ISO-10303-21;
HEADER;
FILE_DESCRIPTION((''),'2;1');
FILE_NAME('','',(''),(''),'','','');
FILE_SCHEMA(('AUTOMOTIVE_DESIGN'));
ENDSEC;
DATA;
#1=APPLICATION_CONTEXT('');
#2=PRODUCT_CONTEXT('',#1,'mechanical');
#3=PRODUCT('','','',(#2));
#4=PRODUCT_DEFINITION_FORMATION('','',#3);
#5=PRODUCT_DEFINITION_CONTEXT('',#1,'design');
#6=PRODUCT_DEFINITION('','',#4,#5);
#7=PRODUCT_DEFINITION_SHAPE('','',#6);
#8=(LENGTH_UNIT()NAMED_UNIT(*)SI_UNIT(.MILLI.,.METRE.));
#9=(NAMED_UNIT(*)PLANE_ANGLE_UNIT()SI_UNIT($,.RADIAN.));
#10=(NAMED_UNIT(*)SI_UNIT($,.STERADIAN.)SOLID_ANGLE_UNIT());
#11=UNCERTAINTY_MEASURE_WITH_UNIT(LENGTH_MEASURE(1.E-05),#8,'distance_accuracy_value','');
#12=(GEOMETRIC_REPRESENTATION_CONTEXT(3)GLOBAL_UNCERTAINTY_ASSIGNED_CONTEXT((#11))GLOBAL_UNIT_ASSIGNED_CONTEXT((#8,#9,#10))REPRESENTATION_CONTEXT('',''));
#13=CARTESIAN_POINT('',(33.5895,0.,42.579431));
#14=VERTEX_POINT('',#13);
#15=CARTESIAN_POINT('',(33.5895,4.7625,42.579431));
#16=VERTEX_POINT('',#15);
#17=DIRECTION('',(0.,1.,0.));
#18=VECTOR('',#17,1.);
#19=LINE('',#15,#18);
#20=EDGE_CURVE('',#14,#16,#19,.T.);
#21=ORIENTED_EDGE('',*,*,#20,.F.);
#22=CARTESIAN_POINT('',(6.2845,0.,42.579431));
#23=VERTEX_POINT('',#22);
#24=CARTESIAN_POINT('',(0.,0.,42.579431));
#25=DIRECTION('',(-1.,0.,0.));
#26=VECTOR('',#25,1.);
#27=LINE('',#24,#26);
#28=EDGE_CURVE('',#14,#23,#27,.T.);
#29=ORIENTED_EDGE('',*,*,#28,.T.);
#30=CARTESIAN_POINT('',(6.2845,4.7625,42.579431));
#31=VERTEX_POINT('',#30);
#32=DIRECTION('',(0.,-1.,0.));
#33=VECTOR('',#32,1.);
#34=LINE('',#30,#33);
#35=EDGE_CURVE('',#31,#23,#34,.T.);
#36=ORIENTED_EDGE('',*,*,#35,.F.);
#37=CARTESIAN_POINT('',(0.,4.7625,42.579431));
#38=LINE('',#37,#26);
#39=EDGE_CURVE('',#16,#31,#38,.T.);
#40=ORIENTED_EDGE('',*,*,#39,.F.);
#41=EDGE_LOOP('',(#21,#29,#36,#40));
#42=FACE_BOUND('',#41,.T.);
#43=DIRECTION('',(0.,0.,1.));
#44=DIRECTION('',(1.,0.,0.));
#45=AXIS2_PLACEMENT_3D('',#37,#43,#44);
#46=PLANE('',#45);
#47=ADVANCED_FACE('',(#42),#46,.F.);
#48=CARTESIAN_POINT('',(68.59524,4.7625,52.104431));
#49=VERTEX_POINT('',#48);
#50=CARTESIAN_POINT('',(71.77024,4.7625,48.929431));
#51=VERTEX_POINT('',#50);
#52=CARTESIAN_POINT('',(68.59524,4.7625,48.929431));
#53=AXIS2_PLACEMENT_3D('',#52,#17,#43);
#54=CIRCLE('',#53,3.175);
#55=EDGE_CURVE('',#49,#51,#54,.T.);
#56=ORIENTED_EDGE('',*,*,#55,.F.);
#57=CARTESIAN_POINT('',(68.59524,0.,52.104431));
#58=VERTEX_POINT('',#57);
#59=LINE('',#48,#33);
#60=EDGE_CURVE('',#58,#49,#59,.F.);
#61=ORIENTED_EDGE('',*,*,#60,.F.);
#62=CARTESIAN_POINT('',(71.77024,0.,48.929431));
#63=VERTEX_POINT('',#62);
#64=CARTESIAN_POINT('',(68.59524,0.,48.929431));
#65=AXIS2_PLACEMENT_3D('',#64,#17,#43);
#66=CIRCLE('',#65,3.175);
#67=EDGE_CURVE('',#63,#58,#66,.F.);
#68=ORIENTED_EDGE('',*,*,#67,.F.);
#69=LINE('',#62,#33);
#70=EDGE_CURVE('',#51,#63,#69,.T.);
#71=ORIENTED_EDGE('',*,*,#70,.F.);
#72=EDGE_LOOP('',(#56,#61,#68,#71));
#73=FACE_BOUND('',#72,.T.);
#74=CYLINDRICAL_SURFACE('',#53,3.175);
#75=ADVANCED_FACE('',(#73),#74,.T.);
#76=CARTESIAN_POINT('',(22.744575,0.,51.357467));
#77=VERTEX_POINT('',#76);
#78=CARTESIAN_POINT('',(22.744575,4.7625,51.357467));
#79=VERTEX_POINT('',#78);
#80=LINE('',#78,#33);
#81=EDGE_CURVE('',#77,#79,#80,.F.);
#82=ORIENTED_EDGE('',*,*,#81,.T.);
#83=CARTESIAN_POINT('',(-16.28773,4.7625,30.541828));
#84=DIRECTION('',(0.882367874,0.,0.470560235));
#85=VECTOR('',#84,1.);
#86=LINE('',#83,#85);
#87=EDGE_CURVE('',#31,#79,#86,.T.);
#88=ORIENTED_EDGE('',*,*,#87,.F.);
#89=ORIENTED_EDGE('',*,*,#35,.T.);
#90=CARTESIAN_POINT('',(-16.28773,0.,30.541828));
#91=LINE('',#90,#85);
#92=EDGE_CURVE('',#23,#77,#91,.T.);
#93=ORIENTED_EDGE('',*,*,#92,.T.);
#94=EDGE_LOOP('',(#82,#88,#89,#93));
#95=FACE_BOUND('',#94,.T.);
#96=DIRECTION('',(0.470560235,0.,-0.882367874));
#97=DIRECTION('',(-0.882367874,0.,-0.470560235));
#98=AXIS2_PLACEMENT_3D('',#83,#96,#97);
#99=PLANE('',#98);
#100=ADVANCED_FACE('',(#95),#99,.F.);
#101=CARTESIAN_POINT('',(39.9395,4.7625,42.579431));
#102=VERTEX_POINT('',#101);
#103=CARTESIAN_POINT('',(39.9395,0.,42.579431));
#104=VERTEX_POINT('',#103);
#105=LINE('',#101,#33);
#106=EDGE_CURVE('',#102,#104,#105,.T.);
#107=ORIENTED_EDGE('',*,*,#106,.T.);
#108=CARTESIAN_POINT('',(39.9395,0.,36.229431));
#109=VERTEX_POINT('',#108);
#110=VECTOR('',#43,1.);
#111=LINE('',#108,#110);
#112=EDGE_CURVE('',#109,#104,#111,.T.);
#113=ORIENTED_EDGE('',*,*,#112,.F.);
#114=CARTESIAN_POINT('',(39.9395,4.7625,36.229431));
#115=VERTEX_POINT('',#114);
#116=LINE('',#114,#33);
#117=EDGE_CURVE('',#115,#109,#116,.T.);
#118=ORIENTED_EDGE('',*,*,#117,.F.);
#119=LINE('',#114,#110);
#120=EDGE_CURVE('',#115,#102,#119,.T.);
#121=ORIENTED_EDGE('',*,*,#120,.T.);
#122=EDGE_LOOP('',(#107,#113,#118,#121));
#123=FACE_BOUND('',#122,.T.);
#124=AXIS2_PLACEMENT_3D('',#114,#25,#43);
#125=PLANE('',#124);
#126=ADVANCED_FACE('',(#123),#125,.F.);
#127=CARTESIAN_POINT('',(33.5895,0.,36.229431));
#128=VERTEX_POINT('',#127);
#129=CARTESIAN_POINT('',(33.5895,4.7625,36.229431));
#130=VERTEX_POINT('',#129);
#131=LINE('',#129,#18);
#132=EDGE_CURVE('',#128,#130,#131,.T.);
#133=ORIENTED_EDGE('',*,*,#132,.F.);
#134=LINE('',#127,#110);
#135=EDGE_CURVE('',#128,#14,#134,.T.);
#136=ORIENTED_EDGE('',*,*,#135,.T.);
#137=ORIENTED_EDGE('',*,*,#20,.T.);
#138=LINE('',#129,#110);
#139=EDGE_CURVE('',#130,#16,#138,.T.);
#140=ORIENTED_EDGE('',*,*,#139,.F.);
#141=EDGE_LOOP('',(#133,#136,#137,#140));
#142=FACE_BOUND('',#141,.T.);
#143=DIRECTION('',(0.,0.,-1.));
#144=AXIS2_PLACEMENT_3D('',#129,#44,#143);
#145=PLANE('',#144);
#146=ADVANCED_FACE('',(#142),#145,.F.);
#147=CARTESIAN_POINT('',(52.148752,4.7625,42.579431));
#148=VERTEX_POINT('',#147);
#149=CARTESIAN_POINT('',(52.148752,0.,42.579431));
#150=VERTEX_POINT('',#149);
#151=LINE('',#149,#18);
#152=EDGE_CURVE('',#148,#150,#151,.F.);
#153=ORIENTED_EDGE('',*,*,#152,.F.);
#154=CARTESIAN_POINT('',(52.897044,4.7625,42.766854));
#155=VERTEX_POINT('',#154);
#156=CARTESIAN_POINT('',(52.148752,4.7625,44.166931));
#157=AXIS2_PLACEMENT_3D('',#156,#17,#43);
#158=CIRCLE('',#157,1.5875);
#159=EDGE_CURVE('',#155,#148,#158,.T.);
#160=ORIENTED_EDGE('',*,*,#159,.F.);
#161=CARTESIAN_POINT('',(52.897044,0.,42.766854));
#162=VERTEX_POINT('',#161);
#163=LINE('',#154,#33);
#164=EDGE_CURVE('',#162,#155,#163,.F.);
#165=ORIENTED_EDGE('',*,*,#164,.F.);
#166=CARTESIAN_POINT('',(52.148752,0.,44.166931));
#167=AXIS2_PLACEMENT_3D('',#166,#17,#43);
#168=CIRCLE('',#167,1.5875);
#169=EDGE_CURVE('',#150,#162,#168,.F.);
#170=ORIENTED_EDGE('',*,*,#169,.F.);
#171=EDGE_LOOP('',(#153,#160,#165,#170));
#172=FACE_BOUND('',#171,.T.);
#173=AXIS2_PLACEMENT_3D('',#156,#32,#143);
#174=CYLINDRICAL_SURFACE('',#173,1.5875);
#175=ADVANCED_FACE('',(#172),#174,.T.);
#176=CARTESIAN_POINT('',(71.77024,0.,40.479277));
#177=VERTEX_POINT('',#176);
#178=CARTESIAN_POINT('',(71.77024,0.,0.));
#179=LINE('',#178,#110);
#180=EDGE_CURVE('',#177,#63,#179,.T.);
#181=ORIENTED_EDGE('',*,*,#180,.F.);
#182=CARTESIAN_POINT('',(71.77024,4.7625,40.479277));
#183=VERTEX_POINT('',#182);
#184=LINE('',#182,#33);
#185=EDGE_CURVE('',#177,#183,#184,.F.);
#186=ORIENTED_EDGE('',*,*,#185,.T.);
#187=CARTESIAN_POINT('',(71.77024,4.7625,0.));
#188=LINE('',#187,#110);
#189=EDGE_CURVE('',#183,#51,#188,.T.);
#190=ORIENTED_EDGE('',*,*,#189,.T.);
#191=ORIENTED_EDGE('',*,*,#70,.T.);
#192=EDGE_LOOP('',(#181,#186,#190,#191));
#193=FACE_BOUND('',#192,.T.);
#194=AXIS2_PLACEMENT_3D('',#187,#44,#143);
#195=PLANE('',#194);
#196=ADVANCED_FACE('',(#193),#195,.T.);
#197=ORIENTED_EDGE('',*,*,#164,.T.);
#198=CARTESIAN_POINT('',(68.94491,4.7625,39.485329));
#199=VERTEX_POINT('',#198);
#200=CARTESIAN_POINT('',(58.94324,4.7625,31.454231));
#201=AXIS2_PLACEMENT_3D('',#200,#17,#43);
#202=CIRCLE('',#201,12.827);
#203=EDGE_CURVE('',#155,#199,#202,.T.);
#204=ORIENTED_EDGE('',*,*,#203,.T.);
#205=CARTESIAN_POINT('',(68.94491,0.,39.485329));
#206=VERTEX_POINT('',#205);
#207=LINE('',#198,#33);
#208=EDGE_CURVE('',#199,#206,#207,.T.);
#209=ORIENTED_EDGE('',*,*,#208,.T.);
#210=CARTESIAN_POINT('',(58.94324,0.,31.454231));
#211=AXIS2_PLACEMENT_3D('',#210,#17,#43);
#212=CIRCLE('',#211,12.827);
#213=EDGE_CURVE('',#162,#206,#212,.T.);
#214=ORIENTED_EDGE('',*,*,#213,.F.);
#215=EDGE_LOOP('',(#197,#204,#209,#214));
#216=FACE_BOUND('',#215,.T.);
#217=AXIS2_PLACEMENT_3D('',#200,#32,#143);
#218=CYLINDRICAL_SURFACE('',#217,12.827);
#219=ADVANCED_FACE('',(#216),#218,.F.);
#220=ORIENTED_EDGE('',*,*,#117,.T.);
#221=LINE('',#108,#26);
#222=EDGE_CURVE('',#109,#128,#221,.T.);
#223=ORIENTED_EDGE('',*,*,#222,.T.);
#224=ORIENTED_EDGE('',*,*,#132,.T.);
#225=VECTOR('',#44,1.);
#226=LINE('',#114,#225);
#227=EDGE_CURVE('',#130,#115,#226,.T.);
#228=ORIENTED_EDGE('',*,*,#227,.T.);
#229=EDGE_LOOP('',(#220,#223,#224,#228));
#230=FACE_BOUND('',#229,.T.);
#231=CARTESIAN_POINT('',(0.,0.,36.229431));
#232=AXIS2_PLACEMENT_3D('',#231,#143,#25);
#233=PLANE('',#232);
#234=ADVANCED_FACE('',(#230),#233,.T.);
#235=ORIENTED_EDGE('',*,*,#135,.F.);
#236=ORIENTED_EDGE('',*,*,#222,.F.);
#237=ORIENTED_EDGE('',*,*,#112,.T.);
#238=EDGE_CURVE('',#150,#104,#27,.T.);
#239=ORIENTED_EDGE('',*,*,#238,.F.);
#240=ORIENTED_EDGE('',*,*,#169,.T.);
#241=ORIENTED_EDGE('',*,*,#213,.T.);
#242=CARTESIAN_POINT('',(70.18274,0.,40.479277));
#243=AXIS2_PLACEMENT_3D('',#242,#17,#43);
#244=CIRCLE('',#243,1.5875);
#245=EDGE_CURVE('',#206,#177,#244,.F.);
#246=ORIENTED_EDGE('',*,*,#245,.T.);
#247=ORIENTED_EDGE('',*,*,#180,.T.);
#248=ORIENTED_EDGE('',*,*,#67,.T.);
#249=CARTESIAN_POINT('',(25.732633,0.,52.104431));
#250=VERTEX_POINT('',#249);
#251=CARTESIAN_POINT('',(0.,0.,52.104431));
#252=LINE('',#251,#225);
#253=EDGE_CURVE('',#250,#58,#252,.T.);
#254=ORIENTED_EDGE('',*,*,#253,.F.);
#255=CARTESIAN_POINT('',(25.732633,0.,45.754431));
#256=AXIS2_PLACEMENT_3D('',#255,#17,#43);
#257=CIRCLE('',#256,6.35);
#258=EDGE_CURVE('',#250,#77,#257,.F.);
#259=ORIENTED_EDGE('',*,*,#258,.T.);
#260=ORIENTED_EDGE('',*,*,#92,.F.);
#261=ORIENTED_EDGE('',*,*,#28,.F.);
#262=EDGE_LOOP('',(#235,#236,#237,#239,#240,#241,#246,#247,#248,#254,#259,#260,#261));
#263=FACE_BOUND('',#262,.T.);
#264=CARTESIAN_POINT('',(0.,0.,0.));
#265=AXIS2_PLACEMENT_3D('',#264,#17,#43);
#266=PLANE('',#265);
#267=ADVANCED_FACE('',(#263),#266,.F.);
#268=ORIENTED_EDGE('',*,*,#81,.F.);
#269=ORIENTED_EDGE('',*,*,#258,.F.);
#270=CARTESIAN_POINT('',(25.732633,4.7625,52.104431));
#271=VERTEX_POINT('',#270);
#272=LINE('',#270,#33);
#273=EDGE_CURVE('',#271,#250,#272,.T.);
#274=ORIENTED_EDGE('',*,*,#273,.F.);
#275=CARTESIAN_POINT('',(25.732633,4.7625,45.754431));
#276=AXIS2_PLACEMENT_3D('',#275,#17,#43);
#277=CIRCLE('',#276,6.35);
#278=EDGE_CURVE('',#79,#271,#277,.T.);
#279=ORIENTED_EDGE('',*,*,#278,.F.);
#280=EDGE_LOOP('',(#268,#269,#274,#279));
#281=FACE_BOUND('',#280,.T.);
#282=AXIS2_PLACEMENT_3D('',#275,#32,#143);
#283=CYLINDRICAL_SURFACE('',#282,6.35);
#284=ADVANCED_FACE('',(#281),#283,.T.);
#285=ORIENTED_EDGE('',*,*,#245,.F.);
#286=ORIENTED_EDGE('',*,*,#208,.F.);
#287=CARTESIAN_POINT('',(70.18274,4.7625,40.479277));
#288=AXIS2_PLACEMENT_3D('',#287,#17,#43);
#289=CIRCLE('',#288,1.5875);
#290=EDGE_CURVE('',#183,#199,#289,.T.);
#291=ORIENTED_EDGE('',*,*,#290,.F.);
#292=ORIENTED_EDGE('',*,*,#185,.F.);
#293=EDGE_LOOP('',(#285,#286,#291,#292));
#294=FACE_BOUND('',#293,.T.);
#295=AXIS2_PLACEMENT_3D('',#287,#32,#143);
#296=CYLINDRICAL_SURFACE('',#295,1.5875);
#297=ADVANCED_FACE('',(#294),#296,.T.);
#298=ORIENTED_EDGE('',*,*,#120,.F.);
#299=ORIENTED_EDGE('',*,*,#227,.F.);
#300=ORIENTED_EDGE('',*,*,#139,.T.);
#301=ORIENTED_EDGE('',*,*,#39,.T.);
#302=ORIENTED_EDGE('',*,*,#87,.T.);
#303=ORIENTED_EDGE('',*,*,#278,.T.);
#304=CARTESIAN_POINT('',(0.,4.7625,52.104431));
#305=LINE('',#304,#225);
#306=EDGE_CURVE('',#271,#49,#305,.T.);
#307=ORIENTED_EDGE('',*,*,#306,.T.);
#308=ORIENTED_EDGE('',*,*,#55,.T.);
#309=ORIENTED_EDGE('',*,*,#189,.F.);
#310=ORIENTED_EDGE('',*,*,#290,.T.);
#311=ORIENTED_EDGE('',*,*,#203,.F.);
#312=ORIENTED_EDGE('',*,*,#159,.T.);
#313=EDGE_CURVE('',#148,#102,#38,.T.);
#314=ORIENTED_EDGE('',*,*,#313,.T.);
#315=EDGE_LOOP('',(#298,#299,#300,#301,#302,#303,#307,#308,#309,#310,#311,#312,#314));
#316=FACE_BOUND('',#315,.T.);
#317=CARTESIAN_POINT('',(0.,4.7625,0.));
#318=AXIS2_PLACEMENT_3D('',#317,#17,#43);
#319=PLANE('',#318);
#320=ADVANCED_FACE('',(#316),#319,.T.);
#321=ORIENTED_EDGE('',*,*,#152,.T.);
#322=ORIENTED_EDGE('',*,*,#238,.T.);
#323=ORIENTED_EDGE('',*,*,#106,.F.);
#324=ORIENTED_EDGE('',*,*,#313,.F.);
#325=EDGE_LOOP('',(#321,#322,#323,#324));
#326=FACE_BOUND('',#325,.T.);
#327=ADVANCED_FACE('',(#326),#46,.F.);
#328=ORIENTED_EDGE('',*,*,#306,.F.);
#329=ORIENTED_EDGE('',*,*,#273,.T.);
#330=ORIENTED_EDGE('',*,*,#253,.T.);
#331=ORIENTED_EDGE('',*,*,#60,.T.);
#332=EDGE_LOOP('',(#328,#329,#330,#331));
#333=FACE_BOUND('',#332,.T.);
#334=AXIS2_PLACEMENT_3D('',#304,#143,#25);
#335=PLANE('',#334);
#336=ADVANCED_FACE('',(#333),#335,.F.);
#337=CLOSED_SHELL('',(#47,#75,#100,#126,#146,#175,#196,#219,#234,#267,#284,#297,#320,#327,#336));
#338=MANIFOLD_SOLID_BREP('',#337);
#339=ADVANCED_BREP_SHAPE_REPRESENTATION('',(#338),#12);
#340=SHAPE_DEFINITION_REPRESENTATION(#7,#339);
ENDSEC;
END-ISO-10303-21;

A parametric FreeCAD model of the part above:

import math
import FreeCAD as App
import Part
import Sketcher

V = App.Vector
Q = App.Units.Quantity


def edges_at(feature, points):
    """Names of the edges that pass closest to the given points."""
    edges = feature.Shape.Edges
    near = lambda p: min(range(len(edges)), key=lambda i: edges[i].distToShape(Part.Vertex(*p))[0])
    return sorted({f"Edge{near(p) + 1}" for p in points})


def add_polygon(sketch, points):
    """Adds a closed chain of lines whose ends are joined by coincident constraints."""
    first, n = sketch.GeometryCount, len(points)
    for a, b in zip(points, points[1:] + points[:1]):
        sketch.addGeometry(Part.LineSegment(App.Vector(*a, 0), App.Vector(*b, 0)), False)
    for i in range(n):
        sketch.addConstraint(Sketcher.Constraint("Coincident", first + i, 2, first + (i + 1) % n, 1))

doc = App.newDocument("Part")
body = doc.addObject("PartDesign::Body", "Body")

# Sketch on XZ plane
sketch1 = body.newObject("Sketcher::SketchObject", "Sketch")
sketch1.AttachmentSupport = (doc.getObject("XZ_Plane"), [""])
sketch1.MapMode = "FlatFace"
sketch1.addGeometry(Part.ArcOfCircle(Part.Circle(V(58.94324, 31.454231, 0), V(0, 0, 1), 12.827), math.radians(0), math.radians(119.850541)), False)
sketch1.addGeometry(Part.LineSegment(V(52.558739, 42.579431, 0), V(6.2845, 42.579431, 0)), False)
sketch1.addGeometry(Part.LineSegment(V(6.2845, 42.579431, 0), V(24.14524, 52.104431, 0)), False)
sketch1.addGeometry(Part.LineSegment(V(24.14524, 52.104431, 0), V(71.77024, 52.104431, 0)), False)
sketch1.addGeometry(Part.LineSegment(V(71.77024, 52.104431, 0), V(71.77024, 31.454231, 0)), False)
sketch1.addConstraint(Sketcher.Constraint("Coincident", 0, 2, 1, 1))
sketch1.addConstraint(Sketcher.Constraint("Coincident", 1, 2, 2, 1))
sketch1.addConstraint(Sketcher.Constraint("Coincident", 2, 2, 3, 1))
sketch1.addConstraint(Sketcher.Constraint("Coincident", 3, 2, 4, 1))
sketch1.addConstraint(Sketcher.Constraint("Tangent", 4, 2, 0, 1))
sketch1.addConstraint(Sketcher.Constraint("Horizontal", 1))
sketch1.addConstraint(Sketcher.Constraint("Horizontal", 3))
sketch1.addConstraint(Sketcher.Constraint("Vertical", 4))
sketch1.addConstraint(Sketcher.Constraint("Radius", 0, Q("0.505 in")))
sketch1.addConstraint(Sketcher.Constraint("DistanceX", 3, 1, 3, 2, Q("1.875 in")))
sketch1.addConstraint(Sketcher.Constraint("DistanceY", 4, 2, 4, 1, Q("0.813 in")))
sketch1.addConstraint(Sketcher.Constraint("DistanceY", 0, 3, 0, 2, Q("0.438 in")))
sketch1.addConstraint(Sketcher.Constraint("DistanceX", -1, 1, 0, 3, Q("2.3206 in")))
sketch1.addConstraint(Sketcher.Constraint("DistanceX", 1, 2, 1, 1, 46.274239))
sketch1.addConstraint(Sketcher.Constraint("DistanceY", -1, 1, 0, 3, 31.454231))
pad1 = body.newObject("PartDesign::Pad", "Pad")
pad1.Profile = sketch1
pad1.Length = Q("0.1875 in")
pad1.Reversed = True
doc.recompute()

fillet = body.newObject("PartDesign::Fillet", "Fillet")
fillet.Base = (pad1, edges_at(pad1, [(71.77, 2.381, 31.454), (52.559, 2.381, 42.579)]))
fillet.Radius = Q("0.0625 in")
doc.recompute()

fillet2 = body.newObject("PartDesign::Fillet", "Fillet001")
fillet2.Base = (fillet, edges_at(fillet, [(24.145, 2.381, 52.104)]))
fillet2.Radius = Q("0.25 in")
doc.recompute()

fillet3 = body.newObject("PartDesign::Fillet", "Fillet002")
fillet3.Base = (fillet2, edges_at(fillet2, [(71.77, 2.381, 52.104)]))
fillet3.Radius = Q("0.125 in")

# Sketch on XY plane
sketch2 = body.newObject("Sketcher::SketchObject", "Sketch001")
sketch2.AttachmentSupport = (doc.getObject("XY_Plane"), [""])
sketch2.MapMode = "FlatFace"
sketch2.AttachmentOffset = App.Placement(V(0, 0, 42.579431), App.Rotation())
add_polygon(sketch2, [(39.9395, 4.7625), (39.9395, 0), (33.5895, 0), (33.5895, 4.7625)])  # lines 0-3
sketch2.addConstraint(Sketcher.Constraint("Vertical", 0))
sketch2.addConstraint(Sketcher.Constraint("Horizontal", 1))
sketch2.addConstraint(Sketcher.Constraint("Vertical", 2))
sketch2.addConstraint(Sketcher.Constraint("Horizontal", 3))
sketch2.addConstraint(Sketcher.Constraint("PointOnObject", 0, 2, -1))
sketch2.addConstraint(Sketcher.Constraint("DistanceX", 1, 2, 1, 1, Q("0.25 in")))
sketch2.addConstraint(Sketcher.Constraint("DistanceY", 0, 2, 0, 1, Q("0.1875 in")))
sketch2.addConstraint(Sketcher.Constraint("DistanceX", -1, 1, 0, 2, 39.9395))
pad2 = body.newObject("PartDesign::Pad", "Pad001")
pad2.Profile = sketch2
pad2.Length = Q("0.25 in")
pad2.Reversed = True

doc.recompute()
